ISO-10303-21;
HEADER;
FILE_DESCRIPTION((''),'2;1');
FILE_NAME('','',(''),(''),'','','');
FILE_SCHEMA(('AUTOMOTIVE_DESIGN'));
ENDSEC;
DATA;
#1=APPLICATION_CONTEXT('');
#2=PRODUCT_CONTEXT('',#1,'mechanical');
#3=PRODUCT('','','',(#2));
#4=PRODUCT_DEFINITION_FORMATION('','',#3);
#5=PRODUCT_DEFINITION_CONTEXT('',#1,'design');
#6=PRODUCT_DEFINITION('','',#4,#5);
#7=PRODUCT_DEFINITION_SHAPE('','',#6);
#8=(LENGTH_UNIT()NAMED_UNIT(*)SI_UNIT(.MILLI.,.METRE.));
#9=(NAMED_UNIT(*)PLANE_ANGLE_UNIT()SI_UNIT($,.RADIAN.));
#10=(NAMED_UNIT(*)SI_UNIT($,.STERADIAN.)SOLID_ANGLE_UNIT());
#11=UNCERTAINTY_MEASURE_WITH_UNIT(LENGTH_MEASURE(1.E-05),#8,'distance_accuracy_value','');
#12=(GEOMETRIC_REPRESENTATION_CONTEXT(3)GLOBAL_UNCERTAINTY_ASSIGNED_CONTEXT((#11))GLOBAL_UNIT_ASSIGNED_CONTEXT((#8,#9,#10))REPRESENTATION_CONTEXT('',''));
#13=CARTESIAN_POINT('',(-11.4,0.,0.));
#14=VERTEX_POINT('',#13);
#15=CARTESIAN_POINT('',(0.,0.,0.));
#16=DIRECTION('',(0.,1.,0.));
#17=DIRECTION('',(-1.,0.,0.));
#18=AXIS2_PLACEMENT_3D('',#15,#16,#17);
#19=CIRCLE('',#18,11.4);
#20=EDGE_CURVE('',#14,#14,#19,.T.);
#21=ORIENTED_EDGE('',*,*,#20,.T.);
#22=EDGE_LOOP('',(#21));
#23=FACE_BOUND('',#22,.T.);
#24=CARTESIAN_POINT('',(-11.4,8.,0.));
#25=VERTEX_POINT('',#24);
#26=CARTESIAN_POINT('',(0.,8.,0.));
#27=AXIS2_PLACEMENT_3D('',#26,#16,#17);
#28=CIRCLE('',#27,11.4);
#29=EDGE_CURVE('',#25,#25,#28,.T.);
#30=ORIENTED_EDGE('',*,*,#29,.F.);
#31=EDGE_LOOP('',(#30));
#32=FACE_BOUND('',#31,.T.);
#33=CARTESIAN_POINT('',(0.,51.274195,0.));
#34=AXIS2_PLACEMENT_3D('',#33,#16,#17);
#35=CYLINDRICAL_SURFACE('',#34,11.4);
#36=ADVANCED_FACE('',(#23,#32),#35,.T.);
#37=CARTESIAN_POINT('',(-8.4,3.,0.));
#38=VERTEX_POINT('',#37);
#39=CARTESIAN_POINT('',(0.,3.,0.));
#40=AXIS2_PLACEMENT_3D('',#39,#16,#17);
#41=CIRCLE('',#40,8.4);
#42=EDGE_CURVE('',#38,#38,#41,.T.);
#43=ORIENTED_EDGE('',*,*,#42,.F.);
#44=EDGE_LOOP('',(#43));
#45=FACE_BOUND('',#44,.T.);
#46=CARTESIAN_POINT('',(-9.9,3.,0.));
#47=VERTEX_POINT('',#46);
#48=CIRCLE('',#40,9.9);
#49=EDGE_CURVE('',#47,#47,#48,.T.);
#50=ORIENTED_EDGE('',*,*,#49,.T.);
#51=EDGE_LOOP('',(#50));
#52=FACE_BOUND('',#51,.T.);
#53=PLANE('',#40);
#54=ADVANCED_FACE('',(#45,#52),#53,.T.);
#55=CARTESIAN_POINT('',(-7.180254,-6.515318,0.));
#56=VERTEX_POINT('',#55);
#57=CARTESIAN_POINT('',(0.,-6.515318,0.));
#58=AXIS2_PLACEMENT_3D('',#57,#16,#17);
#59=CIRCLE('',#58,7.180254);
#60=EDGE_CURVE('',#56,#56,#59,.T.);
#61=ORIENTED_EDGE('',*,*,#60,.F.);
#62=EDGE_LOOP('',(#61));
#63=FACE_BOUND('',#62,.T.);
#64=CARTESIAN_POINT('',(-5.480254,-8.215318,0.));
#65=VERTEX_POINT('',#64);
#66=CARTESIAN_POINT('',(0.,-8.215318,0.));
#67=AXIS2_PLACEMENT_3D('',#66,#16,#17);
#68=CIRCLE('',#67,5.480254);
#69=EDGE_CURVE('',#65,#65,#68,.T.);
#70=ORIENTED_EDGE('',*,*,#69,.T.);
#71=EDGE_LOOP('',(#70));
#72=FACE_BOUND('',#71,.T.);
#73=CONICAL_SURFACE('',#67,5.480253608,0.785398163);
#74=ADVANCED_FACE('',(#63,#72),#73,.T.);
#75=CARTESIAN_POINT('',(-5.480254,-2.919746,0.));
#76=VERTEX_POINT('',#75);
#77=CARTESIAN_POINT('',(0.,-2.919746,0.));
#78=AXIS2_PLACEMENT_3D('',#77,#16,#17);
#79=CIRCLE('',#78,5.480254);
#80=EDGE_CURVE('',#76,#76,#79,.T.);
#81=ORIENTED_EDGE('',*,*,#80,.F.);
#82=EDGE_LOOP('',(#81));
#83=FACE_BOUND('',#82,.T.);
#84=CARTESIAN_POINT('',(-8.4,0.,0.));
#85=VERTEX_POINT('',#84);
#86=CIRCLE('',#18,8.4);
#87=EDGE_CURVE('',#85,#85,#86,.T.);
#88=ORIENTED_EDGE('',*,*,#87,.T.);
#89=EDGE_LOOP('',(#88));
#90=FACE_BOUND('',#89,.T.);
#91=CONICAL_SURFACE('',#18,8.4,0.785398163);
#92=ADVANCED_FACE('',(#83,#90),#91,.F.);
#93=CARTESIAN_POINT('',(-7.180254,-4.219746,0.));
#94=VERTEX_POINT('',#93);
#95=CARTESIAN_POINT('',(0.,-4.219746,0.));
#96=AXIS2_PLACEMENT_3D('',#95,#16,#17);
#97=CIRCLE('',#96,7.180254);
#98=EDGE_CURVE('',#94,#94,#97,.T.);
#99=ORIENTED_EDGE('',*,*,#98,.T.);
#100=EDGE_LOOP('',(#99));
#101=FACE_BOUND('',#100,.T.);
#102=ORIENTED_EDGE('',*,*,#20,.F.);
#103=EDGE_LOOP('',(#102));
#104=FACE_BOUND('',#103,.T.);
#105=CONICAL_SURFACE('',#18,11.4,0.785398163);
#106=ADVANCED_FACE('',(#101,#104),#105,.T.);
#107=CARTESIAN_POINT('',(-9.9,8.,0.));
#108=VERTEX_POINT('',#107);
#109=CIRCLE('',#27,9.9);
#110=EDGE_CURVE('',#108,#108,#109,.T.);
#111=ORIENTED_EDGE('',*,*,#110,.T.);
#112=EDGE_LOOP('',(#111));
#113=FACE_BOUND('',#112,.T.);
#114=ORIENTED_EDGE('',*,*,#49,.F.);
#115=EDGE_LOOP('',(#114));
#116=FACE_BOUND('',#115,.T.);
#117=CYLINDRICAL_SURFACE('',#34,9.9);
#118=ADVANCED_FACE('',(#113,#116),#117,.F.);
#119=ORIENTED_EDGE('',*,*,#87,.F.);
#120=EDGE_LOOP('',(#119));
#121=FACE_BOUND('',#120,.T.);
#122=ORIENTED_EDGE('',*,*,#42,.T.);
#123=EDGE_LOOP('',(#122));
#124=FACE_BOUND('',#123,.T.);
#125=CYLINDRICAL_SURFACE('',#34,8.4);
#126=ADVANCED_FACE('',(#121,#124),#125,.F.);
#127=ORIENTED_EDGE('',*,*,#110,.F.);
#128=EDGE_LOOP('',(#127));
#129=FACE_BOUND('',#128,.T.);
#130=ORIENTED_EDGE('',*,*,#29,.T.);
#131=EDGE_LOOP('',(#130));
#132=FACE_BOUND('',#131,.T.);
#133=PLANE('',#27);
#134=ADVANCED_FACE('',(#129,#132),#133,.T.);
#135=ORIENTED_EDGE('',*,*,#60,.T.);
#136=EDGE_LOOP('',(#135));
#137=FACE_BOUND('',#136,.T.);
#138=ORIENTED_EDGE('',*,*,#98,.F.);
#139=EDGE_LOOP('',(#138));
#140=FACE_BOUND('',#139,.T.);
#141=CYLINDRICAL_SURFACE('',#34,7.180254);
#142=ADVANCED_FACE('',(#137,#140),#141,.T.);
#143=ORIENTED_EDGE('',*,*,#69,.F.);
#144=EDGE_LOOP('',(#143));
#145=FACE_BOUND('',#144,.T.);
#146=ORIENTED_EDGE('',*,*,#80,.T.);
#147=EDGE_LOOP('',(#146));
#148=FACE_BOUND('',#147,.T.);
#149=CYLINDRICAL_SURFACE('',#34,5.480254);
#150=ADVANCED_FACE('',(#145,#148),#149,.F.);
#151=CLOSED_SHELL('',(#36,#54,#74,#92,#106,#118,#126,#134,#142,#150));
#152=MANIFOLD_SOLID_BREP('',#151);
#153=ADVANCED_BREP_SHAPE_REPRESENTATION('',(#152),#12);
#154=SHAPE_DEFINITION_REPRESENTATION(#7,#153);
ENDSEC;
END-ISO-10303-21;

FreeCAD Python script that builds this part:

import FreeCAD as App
import Part
import Sketcher
Q = App.Units.Quantity

doc = App.newDocument("Part")
body = doc.addObject("PartDesign::Body", "Body")

sketch1 = body.newObject("Sketcher::SketchObject", "Sketch")
sketch1.AttachmentSupport = (doc.getObject("XY_Plane"), [""])
sketch1.MapMode = "FlatFace"
sketch1.addGeometry(Part.LineSegment(App.Vector(5.5, -2.9, 0), App.Vector(5.5, -8.2, 0)), False)
sketch1.addGeometry(Part.LineSegment(App.Vector(5.5, -8.2, 0), App.Vector(7.2, -6.5, 0)), False)
sketch1.addGeometry(Part.LineSegment(App.Vector(7.2, -6.5, 0), App.Vector(7.2, -4.2, 0)), False)
sketch1.addGeometry(Part.LineSegment(App.Vector(7.2, -4.2, 0), App.Vector(11.4, 0, 0)), False)
sketch1.addGeometry(Part.LineSegment(App.Vector(11.4, 0, 0), App.Vector(11.4, 8, 0)), False)
sketch1.addGeometry(Part.LineSegment(App.Vector(11.4, 8, 0), App.Vector(9.9, 8, 0)), False)
sketch1.addGeometry(Part.LineSegment(App.Vector(9.9, 8, 0), App.Vector(9.9, 3, 0)), False)
sketch1.addGeometry(Part.LineSegment(App.Vector(9.9, 3, 0), App.Vector(8.4, 3, 0)), False)
sketch1.addGeometry(Part.LineSegment(App.Vector(8.4, 3, 0), App.Vector(8.4, 0, 0)), False)
sketch1.addGeometry(Part.LineSegment(App.Vector(8.4, 0, 0), App.Vector(5.5, -2.9, 0)), False)
sketch1.addConstraint(Sketcher.Constraint("Coincident", 0, 2, 1, 1))
sketch1.addConstraint(Sketcher.Constraint("Coincident", 1, 2, 2, 1))
sketch1.addConstraint(Sketcher.Constraint("Coincident", 2, 2, 3, 1))
sketch1.addConstraint(Sketcher.Constraint("Coincident", 3, 2, 4, 1))
sketch1.addConstraint(Sketcher.Constraint("Coincident", 4, 2, 5, 1))
sketch1.addConstraint(Sketcher.Constraint("Coincident", 5, 2, 6, 1))
sketch1.addConstraint(Sketcher.Constraint("Coincident", 6, 2, 7, 1))
sketch1.addConstraint(Sketcher.Constraint("Coincident", 7, 2, 8, 1))
sketch1.addConstraint(Sketcher.Constraint("Coincident", 8, 2, 9, 1))
sketch1.addConstraint(Sketcher.Constraint("Coincident", 9, 2, 0, 1))
sketch1.addConstraint(Sketcher.Constraint("Vertical", 0))
sketch1.addConstraint(Sketcher.Constraint("Vertical", 2))
sketch1.addConstraint(Sketcher.Constraint("Vertical", 4))
sketch1.addConstraint(Sketcher.Constraint("Horizontal", 5))
sketch1.addConstraint(Sketcher.Constraint("Vertical", 6))
sketch1.addConstraint(Sketcher.Constraint("Horizontal", 7))
sketch1.addConstraint(Sketcher.Constraint("Vertical", 8))
sketch1.addConstraint(Sketcher.Constraint("PointOnObject", 3, 2, -1))
sketch1.addConstraint(Sketcher.Constraint("PointOnObject", 8, 2, -1))
sketch1.addConstraint(Sketcher.Constraint("Parallel", 1, 3))
sketch1.addConstraint(Sketcher.Constraint("Parallel", 3, 9))
sketch1.addConstraint(Sketcher.Constraint("Equal", 5, 7))
sketch1.addConstraint(Sketcher.Constraint("DistanceY", 4, 1, 4, 2, 8.0))
sketch1.addConstraint(Sketcher.Constraint("DistanceY", 6, 2, 6, 1, 5.0))
sketch1.addConstraint(Sketcher.Constraint("Angle", 1, Q("45 deg")))
sketch1.addConstraint(Sketcher.Constraint("DistanceX", 5, 2, 5, 1, 1.5))
sketch1.addConstraint(Sketcher.Constraint("DistanceX", -1, 1, 3, 2, 11.4))
sketch1.addConstraint(Sketcher.Constraint("DistanceX", 0, 2, 1, 2, 1.7))
sketch1.addConstraint(Sketcher.Constraint("DistanceY", 0, 2, 0, 1, 5.295572))
sketch1.addConstraint(Sketcher.Constraint("DistanceY", 0, 2, -1, 1, 8.215318))
revolution = body.newObject("PartDesign::Revolution", "Revolution")
revolution.Profile = sketch1
revolution.ReferenceAxis = (sketch1, ["V_Axis"])
revolution.Angle = 360

doc.recompute()
